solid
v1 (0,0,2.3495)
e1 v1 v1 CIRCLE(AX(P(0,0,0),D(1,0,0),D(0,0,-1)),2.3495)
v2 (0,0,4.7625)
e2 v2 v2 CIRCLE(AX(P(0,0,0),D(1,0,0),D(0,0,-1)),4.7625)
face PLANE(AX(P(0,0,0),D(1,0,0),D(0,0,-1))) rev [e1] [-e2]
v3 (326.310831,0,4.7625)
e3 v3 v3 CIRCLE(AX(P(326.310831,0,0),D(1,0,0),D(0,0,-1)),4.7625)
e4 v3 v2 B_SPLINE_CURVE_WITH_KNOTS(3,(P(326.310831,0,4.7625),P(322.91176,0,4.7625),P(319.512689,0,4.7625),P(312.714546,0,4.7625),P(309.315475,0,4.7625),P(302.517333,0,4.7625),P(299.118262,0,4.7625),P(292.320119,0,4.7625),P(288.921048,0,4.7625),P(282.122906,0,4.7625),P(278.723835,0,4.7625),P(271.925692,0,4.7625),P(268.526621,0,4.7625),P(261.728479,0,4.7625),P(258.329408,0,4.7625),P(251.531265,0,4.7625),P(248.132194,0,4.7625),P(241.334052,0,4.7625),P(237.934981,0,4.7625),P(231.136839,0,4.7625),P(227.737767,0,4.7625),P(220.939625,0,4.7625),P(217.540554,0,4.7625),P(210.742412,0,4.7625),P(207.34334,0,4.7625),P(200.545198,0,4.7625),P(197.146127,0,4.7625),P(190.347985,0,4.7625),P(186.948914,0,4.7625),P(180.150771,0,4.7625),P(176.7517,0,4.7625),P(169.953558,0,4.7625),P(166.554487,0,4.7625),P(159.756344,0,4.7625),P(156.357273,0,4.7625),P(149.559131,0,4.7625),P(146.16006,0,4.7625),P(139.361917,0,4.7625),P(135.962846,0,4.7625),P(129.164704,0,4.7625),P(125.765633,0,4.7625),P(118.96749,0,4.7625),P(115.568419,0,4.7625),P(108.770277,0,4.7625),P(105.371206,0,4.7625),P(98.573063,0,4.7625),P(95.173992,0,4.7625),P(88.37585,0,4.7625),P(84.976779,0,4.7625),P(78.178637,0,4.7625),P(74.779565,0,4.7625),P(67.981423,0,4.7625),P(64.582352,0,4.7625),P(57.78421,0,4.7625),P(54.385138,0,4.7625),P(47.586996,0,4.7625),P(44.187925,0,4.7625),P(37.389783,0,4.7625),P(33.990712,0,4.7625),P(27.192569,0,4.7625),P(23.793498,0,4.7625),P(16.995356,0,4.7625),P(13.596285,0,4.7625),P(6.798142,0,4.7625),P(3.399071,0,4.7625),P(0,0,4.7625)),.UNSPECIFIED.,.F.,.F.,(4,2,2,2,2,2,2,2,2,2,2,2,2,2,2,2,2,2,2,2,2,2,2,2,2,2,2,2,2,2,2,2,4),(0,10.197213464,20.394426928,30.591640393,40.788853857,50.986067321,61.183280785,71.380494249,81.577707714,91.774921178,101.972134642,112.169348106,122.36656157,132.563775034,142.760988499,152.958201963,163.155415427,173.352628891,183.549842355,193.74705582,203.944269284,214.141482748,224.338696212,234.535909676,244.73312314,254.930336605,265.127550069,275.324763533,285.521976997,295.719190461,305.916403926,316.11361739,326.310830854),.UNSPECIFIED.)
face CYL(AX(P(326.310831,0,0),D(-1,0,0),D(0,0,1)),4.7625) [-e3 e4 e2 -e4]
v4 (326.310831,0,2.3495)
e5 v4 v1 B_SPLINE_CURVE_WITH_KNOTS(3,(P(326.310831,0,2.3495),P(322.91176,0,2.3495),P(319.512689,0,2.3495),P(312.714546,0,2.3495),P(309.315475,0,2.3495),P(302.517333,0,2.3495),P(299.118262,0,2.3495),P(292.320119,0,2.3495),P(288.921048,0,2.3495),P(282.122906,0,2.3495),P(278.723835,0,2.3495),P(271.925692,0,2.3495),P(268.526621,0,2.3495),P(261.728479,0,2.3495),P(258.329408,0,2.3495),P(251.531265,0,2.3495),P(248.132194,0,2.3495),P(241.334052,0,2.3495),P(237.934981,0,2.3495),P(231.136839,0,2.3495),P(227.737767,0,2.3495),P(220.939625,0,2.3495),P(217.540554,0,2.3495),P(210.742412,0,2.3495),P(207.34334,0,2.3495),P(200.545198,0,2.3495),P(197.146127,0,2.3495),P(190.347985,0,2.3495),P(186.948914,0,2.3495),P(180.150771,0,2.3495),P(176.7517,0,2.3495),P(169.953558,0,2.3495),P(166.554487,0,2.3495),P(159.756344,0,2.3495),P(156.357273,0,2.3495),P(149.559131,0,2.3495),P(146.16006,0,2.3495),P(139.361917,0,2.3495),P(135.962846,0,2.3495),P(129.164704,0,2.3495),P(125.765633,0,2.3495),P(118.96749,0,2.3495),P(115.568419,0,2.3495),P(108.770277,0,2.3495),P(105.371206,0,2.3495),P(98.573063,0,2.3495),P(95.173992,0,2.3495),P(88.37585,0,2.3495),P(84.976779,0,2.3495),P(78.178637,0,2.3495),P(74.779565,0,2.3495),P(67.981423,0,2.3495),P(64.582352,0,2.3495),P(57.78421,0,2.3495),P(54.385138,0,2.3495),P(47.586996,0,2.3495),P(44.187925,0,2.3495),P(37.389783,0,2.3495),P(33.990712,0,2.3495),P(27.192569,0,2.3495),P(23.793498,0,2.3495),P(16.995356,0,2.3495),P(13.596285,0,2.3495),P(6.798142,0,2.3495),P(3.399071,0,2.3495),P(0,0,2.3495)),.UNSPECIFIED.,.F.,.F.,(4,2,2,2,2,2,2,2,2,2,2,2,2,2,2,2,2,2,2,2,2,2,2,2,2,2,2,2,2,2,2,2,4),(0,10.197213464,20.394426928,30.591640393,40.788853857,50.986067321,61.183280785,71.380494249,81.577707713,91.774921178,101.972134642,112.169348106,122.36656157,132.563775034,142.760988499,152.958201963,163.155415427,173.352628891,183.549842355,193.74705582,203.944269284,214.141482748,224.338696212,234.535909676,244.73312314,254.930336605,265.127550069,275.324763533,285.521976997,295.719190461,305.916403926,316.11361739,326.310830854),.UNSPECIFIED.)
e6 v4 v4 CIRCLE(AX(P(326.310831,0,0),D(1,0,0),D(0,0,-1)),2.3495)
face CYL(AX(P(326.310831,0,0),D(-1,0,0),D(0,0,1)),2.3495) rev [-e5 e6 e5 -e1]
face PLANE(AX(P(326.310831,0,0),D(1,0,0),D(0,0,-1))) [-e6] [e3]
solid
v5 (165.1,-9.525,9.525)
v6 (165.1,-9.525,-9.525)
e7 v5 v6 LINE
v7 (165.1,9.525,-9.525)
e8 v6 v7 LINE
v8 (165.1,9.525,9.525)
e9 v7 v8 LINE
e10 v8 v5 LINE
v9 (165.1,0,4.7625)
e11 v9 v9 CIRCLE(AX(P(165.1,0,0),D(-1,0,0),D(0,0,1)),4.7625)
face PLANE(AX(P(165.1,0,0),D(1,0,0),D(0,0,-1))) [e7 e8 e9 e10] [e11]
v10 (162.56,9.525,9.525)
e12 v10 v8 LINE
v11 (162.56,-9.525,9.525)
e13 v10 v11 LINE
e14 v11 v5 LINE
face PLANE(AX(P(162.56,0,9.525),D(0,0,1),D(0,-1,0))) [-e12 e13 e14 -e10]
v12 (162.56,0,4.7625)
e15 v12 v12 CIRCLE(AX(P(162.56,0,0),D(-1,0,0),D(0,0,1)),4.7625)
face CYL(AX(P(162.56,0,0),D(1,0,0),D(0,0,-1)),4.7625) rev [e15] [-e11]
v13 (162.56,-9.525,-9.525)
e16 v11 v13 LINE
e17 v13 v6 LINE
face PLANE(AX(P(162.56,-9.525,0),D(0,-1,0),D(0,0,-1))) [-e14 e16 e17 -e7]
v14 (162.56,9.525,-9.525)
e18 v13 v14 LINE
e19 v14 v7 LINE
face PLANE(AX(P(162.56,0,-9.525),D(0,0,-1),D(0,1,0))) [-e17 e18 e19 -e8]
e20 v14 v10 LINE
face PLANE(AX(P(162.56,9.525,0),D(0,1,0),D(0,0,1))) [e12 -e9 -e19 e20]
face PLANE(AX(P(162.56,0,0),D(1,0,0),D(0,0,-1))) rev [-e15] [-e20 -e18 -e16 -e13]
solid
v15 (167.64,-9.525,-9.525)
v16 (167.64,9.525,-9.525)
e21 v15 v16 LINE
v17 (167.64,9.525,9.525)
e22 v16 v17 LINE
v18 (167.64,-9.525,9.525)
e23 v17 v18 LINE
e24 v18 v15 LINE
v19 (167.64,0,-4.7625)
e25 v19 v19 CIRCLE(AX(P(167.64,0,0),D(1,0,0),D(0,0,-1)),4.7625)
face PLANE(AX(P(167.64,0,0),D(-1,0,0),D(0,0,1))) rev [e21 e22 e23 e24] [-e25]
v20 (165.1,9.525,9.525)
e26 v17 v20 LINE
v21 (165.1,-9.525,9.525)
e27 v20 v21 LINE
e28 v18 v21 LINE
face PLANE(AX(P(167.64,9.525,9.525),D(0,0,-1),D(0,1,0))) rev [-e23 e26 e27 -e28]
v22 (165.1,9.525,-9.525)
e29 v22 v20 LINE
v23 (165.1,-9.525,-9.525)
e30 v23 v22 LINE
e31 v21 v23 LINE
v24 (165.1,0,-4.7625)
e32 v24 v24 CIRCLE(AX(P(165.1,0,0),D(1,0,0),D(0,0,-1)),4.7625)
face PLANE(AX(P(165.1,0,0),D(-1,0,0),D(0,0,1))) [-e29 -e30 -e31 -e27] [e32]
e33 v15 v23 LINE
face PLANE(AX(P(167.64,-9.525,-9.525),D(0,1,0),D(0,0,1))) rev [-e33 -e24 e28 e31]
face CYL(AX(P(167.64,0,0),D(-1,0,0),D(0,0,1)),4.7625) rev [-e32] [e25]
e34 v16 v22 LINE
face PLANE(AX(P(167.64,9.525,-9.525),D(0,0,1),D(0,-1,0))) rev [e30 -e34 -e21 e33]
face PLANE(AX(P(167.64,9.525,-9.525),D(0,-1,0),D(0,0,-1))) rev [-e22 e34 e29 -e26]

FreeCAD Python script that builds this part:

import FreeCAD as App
import Part
import Sketcher

V = App.Vector
Q = App.Units.Quantity


def add_polygon(sketch, points):
    """Adds a closed chain of lines whose ends are joined by coincident constraints."""
    first, n = sketch.GeometryCount, len(points)
    for a, b in zip(points, points[1:] + points[:1]):
        sketch.addGeometry(Part.LineSegment(App.Vector(*a, 0), App.Vector(*b, 0)), False)
    for i in range(n):
        sketch.addConstraint(Sketcher.Constraint("Coincident", first + i, 2, first + (i + 1) % n, 1))

doc = App.newDocument("Part")
body = doc.addObject("PartDesign::Body", "Body")

# Sketch on YZ plane
sketch1 = body.newObject("Sketcher::SketchObject", "Sketch")
sketch1.AttachmentSupport = (doc.getObject("YZ_Plane"), [""])
sketch1.MapMode = "FlatFace"
sketch1.addGeometry([
    Part.Circle(V(0, 0, 0), V(0, 0, 1), 4.8),
    Part.Circle(V(0, 0, 0), V(0, 0, 1), 2.3),
], False)
sketch1.addConstraint([
    Sketcher.Constraint("Coincident", 0, 3, -1, 1),
    Sketcher.Constraint("Coincident", 1, 3, -1, 1),
    Sketcher.Constraint("Diameter", 0, Q("0.375 in")),
    Sketcher.Constraint("Diameter", 1, Q("0.185 in")),
])
pad1 = body.newObject("PartDesign::Pad", "Pad")
pad1.Profile = sketch1
pad1.Length = 326.310831
body2 = doc.addObject("PartDesign::Body", "Body001")

# Sketch on YZ plane
sketch2 = body2.newObject("Sketcher::SketchObject", "Sketch001")
sketch2.AttachmentSupport = (doc.getObject("YZ_Plane001"), [""])
sketch2.MapMode = "FlatFace"
sketch2.AttachmentOffset = App.Placement(V(0, 0, 6.5 * 25.4), App.Rotation())
add_polygon(sketch2, [(9.5, 9.5), (-9.5, 9.5), (-9.5, -9.5), (9.5, -9.5)])  # lines 0-3
sketch2.addGeometry(Part.Circle(V(0, 0, 0), V(0, 0, 1), 4.8), False)  # 4
sketch2.addConstraint([
    Sketcher.Constraint("Horizontal", 0),
    Sketcher.Constraint("Vertical", 1),
    Sketcher.Constraint("Horizontal", 2),
    Sketcher.Constraint("Vertical", 3),
    Sketcher.Constraint("Coincident", 4, 3, -1, 1),
    Sketcher.Constraint("Symmetric", 0, 2, 2, 2, -1, 1),
    Sketcher.Constraint("Equal", 2, 1),
    Sketcher.Constraint("Diameter", 4, Q("0.375 in")),
    Sketcher.Constraint("DistanceX", 0, 2, 0, 1, Q("0.75 in")),
])
pad2 = body2.newObject("PartDesign::Pad", "Pad001")
pad2.Profile = sketch2
pad2.Length = Q("0.1 in")
body3 = doc.addObject("PartDesign::Body", "Body002")

# Sketch on YZ plane
sketch3 = body3.newObject("Sketcher::SketchObject", "Sketch002")
sketch3.AttachmentSupport = (doc.getObject("YZ_Plane002"), [""])
sketch3.MapMode = "FlatFace"
sketch3.AttachmentOffset = App.Placement(V(0, 0, 6.5 * 25.4), App.Rotation())
add_polygon(sketch3, [(9.5, 9.5), (-9.5, 9.5), (-9.5, -9.5), (9.5, -9.5)])  # lines 0-3
sketch3.addGeometry(Part.Circle(V(0, 0, 0), V(0, 0, 1), 4.8), False)  # 4
sketch3.addConstraint([
    Sketcher.Constraint("Horizontal", 0),
    Sketcher.Constraint("Vertical", 1),
    Sketcher.Constraint("Horizontal", 2),
    Sketcher.Constraint("Vertical", 3),
    Sketcher.Constraint("Coincident", 4, 3, -1, 1),
    Sketcher.Constraint("Symmetric", 0, 2, 2, 2, -1, 1),
    Sketcher.Constraint("Equal", 2, 1),
    Sketcher.Constraint("Diameter", 4, Q("0.375 in")),
    Sketcher.Constraint("DistanceX", 0, 2, 0, 1, Q("0.75 in")),
])
pad3 = body3.newObject("PartDesign::Pad", "Pad002")
pad3.Profile = sketch3
pad3.Length = Q("0.1 in")
pad3.Reversed = True

doc.recompute()
